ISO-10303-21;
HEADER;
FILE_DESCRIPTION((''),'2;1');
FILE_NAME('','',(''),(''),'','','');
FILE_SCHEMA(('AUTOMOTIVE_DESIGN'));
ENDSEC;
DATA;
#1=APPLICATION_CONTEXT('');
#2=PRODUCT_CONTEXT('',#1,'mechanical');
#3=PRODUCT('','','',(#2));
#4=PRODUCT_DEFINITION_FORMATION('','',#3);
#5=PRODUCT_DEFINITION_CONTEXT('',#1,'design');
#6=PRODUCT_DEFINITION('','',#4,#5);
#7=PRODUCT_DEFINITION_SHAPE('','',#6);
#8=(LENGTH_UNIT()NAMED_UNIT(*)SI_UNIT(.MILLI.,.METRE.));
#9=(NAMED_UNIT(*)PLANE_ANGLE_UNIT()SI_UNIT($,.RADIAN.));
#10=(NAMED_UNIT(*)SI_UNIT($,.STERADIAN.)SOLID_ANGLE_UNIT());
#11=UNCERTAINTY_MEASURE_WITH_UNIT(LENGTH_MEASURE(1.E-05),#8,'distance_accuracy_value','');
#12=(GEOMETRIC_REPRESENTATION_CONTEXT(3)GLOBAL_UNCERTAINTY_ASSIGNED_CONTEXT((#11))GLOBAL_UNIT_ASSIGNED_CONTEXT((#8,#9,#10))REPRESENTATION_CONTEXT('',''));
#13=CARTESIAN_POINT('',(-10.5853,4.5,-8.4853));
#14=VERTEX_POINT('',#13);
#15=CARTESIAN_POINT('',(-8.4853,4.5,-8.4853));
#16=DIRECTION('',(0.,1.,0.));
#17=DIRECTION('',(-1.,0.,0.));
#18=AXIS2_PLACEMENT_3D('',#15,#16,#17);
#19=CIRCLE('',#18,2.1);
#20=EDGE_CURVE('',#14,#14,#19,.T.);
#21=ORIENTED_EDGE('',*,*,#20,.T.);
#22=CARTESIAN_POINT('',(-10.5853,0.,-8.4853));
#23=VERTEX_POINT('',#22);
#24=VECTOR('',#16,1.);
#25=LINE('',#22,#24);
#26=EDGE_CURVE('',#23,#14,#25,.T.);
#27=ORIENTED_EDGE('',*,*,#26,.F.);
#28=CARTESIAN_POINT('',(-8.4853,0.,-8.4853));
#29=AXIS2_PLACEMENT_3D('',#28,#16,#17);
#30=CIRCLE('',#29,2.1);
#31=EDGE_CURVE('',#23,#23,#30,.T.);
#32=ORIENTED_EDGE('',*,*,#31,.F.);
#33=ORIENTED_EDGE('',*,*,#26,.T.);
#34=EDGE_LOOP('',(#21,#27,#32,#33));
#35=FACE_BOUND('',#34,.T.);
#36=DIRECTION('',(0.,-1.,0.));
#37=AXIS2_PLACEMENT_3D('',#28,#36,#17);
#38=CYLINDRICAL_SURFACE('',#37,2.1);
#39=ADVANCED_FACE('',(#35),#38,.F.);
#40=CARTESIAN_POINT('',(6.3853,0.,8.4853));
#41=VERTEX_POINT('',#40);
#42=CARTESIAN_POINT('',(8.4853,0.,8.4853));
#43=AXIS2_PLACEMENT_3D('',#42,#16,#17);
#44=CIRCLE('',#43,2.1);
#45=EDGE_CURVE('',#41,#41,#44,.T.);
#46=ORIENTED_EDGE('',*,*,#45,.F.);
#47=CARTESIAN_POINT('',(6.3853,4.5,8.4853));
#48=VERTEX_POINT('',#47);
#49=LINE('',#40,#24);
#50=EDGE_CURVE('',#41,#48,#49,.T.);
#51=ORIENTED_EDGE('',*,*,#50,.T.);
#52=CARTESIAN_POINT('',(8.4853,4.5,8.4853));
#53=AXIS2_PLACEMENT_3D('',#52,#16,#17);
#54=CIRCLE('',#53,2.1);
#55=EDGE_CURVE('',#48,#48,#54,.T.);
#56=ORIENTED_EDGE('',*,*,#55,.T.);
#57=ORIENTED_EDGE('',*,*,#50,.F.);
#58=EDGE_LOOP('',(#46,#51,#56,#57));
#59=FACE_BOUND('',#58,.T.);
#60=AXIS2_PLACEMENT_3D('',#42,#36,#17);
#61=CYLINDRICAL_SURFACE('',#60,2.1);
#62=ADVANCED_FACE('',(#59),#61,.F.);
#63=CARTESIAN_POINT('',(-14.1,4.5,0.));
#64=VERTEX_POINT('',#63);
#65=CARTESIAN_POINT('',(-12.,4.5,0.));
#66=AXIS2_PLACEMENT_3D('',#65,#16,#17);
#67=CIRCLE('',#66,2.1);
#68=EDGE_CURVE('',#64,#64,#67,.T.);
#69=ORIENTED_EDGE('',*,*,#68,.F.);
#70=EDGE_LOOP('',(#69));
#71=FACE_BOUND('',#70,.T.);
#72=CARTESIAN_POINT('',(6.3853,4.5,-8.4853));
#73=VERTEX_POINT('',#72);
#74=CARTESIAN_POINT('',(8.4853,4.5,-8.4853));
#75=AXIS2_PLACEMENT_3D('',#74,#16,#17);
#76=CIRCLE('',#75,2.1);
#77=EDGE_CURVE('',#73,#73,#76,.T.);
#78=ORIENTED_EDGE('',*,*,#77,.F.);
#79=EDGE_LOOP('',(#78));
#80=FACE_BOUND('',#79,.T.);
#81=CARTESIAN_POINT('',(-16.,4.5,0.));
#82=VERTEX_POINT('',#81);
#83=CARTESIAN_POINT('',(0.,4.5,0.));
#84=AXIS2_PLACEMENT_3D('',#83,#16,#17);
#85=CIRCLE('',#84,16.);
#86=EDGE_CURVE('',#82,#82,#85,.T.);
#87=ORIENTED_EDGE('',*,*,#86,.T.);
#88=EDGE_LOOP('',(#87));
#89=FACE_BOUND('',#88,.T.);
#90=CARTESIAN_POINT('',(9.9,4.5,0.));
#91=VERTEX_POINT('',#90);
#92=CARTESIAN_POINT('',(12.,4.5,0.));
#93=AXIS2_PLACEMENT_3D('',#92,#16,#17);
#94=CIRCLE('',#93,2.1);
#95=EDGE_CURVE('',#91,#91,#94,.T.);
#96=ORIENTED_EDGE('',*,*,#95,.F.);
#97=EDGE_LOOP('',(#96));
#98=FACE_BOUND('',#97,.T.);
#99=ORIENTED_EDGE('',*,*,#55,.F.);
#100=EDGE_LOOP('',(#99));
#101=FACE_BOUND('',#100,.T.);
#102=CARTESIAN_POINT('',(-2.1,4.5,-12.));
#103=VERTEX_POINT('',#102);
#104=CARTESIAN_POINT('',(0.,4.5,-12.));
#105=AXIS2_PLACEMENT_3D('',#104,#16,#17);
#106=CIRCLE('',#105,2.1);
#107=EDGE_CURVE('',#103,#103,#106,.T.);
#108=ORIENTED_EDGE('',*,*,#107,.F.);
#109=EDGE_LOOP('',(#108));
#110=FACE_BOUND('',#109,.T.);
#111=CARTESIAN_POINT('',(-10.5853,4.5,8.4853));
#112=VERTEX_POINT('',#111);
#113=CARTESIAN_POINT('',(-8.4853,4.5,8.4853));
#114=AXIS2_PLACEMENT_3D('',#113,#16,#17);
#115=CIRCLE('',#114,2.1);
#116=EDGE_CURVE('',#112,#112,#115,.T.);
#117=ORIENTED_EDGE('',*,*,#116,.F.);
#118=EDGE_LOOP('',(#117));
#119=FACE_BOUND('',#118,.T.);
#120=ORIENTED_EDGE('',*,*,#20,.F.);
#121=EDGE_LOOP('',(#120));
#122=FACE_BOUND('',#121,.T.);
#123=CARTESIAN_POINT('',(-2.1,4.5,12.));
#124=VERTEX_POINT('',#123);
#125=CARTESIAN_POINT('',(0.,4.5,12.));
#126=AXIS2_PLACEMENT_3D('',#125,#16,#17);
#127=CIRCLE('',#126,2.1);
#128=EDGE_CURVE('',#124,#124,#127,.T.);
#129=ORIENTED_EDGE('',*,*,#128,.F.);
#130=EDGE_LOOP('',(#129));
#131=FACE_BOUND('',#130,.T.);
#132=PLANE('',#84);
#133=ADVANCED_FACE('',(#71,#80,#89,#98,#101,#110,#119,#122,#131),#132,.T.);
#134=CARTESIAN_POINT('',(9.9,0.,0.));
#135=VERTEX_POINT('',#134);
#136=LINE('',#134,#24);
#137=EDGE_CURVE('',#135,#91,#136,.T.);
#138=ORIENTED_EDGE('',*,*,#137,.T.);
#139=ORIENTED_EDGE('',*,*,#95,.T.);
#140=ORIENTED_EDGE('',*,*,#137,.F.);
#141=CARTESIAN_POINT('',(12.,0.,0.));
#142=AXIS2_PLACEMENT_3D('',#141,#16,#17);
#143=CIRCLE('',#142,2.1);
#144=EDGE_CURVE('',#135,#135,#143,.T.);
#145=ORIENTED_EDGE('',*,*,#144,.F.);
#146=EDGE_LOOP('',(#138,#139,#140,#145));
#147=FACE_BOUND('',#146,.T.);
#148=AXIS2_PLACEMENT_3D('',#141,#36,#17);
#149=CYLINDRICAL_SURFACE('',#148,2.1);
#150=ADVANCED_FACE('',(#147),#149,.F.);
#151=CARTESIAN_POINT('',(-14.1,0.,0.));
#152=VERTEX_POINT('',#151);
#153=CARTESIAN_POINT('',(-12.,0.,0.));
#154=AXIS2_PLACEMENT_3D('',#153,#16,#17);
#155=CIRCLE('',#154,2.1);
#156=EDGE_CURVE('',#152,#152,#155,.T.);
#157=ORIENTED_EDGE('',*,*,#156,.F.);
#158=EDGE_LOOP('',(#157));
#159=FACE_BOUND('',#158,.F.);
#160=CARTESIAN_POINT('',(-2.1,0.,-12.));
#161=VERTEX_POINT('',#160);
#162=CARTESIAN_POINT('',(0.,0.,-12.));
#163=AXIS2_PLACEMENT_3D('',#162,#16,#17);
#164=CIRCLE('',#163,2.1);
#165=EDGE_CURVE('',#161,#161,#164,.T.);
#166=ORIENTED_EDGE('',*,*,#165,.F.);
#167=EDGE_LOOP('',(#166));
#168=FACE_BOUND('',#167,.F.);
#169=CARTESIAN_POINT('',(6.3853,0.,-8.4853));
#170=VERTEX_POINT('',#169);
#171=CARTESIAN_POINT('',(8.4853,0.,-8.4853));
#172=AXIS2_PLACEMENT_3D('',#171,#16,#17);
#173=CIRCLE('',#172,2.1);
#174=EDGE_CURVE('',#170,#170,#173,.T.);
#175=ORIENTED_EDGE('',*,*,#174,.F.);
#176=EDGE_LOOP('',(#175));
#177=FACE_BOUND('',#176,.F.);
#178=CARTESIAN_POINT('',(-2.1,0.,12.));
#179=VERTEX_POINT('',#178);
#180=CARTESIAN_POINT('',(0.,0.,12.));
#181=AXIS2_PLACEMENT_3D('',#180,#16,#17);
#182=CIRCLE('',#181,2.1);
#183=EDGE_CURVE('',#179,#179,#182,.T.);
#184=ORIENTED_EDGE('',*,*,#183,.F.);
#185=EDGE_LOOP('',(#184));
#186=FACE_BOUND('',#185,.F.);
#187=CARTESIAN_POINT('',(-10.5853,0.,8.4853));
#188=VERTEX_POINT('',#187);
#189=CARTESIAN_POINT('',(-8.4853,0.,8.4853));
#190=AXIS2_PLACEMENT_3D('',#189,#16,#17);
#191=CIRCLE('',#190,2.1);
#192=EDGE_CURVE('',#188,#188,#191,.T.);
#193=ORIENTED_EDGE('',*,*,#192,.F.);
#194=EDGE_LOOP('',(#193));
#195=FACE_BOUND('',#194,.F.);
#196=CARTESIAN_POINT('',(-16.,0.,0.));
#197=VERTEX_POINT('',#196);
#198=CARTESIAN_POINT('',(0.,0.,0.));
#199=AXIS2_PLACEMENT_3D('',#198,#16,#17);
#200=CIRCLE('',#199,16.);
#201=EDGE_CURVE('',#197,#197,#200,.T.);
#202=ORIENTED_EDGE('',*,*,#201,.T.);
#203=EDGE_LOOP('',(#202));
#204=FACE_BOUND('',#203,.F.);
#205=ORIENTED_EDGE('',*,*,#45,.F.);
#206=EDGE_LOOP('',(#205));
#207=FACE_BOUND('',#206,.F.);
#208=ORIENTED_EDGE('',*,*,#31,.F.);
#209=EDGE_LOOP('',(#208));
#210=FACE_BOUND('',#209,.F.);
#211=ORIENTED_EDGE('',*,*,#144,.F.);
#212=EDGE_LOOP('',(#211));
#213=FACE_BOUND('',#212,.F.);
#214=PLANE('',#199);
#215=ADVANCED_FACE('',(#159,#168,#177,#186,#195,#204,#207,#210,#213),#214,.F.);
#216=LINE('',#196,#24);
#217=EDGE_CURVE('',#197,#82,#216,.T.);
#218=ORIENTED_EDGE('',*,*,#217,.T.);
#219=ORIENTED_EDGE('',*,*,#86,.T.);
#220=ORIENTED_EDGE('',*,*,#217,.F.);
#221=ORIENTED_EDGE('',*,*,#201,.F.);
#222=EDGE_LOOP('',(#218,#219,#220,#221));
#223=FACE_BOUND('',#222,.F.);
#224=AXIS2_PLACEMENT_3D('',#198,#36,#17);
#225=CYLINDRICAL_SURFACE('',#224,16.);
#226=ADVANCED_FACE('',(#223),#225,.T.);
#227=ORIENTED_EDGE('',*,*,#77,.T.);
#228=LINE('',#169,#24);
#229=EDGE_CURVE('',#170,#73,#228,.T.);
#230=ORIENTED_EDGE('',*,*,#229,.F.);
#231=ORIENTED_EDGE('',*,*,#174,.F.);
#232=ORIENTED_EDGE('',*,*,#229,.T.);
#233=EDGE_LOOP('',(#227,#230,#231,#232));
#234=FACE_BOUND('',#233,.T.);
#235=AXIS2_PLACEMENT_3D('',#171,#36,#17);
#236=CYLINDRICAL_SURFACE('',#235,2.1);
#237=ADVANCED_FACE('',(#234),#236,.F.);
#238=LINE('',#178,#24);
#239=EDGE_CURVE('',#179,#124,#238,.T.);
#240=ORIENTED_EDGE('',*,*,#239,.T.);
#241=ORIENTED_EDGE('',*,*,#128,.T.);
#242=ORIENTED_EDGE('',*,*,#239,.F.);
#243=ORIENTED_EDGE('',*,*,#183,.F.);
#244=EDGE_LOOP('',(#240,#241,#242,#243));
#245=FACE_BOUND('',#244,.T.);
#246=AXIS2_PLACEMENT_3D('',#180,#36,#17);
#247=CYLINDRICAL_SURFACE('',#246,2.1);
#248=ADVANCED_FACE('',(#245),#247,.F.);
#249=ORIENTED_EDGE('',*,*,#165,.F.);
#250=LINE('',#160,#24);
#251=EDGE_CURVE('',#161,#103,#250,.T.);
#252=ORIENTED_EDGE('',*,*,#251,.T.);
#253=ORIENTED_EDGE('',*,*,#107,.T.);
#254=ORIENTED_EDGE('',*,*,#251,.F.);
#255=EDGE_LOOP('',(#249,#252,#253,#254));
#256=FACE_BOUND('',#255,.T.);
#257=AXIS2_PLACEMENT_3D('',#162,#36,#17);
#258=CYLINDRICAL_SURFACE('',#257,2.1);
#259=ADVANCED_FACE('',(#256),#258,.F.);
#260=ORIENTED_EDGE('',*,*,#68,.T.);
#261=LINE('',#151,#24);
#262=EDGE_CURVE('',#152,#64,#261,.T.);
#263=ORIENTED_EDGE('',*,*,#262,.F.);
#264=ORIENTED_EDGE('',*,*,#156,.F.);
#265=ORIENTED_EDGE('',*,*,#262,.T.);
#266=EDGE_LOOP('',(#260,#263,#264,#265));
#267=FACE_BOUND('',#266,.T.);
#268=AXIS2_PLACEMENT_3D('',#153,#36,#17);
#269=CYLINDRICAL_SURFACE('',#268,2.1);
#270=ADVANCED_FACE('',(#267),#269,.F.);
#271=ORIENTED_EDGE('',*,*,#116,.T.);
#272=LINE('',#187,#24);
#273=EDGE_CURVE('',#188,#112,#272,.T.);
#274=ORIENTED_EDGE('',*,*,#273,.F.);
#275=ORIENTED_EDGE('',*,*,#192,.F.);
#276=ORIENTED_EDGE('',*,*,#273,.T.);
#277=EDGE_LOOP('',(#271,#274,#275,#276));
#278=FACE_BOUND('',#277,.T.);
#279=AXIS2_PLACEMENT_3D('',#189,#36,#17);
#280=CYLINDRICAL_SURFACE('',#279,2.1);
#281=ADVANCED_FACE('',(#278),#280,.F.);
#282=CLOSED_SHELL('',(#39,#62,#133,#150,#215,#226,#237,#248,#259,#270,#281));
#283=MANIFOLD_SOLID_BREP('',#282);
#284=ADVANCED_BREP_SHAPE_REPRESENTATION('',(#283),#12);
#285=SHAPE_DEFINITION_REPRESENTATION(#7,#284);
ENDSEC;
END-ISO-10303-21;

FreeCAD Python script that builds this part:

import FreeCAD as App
import Part
import Sketcher
Q = App.Units.Quantity

doc = App.newDocument("Part")
body = doc.addObject("PartDesign::Body", "Body")

sketch1 = body.newObject("Sketcher::SketchObject", "Sketch")
sketch1.AttachmentSupport = (doc.getObject("XZ_Plane"), [""])
sketch1.MapMode = "FlatFace"
sketch1.addGeometry(Part.Circle(App.Vector(0, 0, 0), App.Vector(0, 0, 1), 16), False)
sketch1.addGeometry(Part.Circle(App.Vector(8.5, -8.5, 0), App.Vector(0, 0, 1), 2.1), False)
sketch1.addGeometry(Part.Circle(App.Vector(0, -12, 0), App.Vector(0, 0, 1), 2.1), False)
sketch1.addGeometry(Part.Circle(App.Vector(-8.5, -8.5, 0), App.Vector(0, 0, 1), 2.1), False)
sketch1.addGeometry(Part.Circle(App.Vector(12, 0, 0), App.Vector(0, 0, 1), 2.1), False)
sketch1.addGeometry(Part.Circle(App.Vector(8.5, 8.5, 0), App.Vector(0, 0, 1), 2.1), False)
sketch1.addGeometry(Part.Circle(App.Vector(-12, 0, 0), App.Vector(0, 0, 1), 2.1), False)
sketch1.addGeometry(Part.Circle(App.Vector(0, 12, 0), App.Vector(0, 0, 1), 2.1), False)
sketch1.addGeometry(Part.Circle(App.Vector(-8.5, 8.5, 0), App.Vector(0, 0, 1), 2.1), False)
sketch1.addConstraint(Sketcher.Constraint("Coincident", 0, 3, -1, 1))
sketch1.addConstraint(Sketcher.Constraint("Equal", 1, 2))
sketch1.addConstraint(Sketcher.Constraint("Equal", 2, 3))
sketch1.addConstraint(Sketcher.Constraint("Equal", 3, 4))
sketch1.addConstraint(Sketcher.Constraint("Equal", 4, 5))
sketch1.addConstraint(Sketcher.Constraint("Equal", 5, 6))
sketch1.addConstraint(Sketcher.Constraint("Equal", 6, 7))
sketch1.addConstraint(Sketcher.Constraint("Equal", 7, 8))
sketch1.addConstraint(Sketcher.Constraint("Symmetric", 3, 3, 5, 3, -1, 1))
sketch1.addConstraint(Sketcher.Constraint("Symmetric", 4, 3, 6, 3, -1, 1))
sketch1.addConstraint(Sketcher.Constraint("Symmetric", 2, 3, 7, 3, -1, 1))
sketch1.addConstraint(Sketcher.Constraint("Symmetric", 1, 3, 8, 3, -1, 1))
sketch1.addConstraint(Sketcher.Constraint("Symmetric", 1, 3, 3, 3, -2))
sketch1.addConstraint(Sketcher.Constraint("PointOnObject", 2, 3, -2))
sketch1.addConstraint(Sketcher.Constraint("PointOnObject", 4, 3, -1))
sketch1.addConstraint(Sketcher.Constraint("Diameter", 0, Q("32 mm")))
sketch1.addConstraint(Sketcher.Constraint("Diameter", 1, Q("4.2 mm")))
sketch1.addConstraint(Sketcher.Constraint("DistanceY", 2, 3, -1, 1, Q("12 mm")))
sketch1.addConstraint(Sketcher.Constraint("DistanceX", -1, 1, 4, 3, Q("12 mm")))
sketch1.addConstraint(Sketcher.Constraint("DistanceX", -1, 1, 1, 3, Q("8.4853 mm")))
sketch1.addConstraint(Sketcher.Constraint("DistanceY", 1, 3, -1, 1, Q("8.4853 mm")))
pad1 = body.newObject("PartDesign::Pad", "Pad")
pad1.Profile = sketch1
pad1.Length = 4.5
pad1.Reversed = True

doc.recompute()
